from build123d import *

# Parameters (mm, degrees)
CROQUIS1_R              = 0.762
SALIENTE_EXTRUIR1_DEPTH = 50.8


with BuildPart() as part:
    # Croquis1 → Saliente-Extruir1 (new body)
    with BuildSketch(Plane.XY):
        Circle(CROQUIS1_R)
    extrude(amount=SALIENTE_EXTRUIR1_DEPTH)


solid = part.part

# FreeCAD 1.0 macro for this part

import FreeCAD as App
import Part
import Sketcher
Q = App.Units.Quantity

doc = App.newDocument("Part")
body = doc.addObject("PartDesign::Body", "Body")

# Sketch on XY plane
sketch1 = body.newObject("Sketcher::SketchObject", "Sketch")
sketch1.AttachmentSupport = (doc.getObject("XY_Plane"), [""])
sketch1.MapMode = "FlatFace"
sketch1.addGeometry(Part.Circle(App.Vector(0, 0, 0), App.Vector(0, 0, 1), 0.8), False)
sketch1.addConstraint(Sketcher.Constraint("Coincident", 0, 3, -1, 1))
sketch1.addConstraint(Sketcher.Constraint("Diameter", 0, Q("0.06 in")))
pad1 = body.newObject("PartDesign::Pad", "Pad")
pad1.Profile = sketch1
pad1.Length = Q("2 in")

doc.recompute()
